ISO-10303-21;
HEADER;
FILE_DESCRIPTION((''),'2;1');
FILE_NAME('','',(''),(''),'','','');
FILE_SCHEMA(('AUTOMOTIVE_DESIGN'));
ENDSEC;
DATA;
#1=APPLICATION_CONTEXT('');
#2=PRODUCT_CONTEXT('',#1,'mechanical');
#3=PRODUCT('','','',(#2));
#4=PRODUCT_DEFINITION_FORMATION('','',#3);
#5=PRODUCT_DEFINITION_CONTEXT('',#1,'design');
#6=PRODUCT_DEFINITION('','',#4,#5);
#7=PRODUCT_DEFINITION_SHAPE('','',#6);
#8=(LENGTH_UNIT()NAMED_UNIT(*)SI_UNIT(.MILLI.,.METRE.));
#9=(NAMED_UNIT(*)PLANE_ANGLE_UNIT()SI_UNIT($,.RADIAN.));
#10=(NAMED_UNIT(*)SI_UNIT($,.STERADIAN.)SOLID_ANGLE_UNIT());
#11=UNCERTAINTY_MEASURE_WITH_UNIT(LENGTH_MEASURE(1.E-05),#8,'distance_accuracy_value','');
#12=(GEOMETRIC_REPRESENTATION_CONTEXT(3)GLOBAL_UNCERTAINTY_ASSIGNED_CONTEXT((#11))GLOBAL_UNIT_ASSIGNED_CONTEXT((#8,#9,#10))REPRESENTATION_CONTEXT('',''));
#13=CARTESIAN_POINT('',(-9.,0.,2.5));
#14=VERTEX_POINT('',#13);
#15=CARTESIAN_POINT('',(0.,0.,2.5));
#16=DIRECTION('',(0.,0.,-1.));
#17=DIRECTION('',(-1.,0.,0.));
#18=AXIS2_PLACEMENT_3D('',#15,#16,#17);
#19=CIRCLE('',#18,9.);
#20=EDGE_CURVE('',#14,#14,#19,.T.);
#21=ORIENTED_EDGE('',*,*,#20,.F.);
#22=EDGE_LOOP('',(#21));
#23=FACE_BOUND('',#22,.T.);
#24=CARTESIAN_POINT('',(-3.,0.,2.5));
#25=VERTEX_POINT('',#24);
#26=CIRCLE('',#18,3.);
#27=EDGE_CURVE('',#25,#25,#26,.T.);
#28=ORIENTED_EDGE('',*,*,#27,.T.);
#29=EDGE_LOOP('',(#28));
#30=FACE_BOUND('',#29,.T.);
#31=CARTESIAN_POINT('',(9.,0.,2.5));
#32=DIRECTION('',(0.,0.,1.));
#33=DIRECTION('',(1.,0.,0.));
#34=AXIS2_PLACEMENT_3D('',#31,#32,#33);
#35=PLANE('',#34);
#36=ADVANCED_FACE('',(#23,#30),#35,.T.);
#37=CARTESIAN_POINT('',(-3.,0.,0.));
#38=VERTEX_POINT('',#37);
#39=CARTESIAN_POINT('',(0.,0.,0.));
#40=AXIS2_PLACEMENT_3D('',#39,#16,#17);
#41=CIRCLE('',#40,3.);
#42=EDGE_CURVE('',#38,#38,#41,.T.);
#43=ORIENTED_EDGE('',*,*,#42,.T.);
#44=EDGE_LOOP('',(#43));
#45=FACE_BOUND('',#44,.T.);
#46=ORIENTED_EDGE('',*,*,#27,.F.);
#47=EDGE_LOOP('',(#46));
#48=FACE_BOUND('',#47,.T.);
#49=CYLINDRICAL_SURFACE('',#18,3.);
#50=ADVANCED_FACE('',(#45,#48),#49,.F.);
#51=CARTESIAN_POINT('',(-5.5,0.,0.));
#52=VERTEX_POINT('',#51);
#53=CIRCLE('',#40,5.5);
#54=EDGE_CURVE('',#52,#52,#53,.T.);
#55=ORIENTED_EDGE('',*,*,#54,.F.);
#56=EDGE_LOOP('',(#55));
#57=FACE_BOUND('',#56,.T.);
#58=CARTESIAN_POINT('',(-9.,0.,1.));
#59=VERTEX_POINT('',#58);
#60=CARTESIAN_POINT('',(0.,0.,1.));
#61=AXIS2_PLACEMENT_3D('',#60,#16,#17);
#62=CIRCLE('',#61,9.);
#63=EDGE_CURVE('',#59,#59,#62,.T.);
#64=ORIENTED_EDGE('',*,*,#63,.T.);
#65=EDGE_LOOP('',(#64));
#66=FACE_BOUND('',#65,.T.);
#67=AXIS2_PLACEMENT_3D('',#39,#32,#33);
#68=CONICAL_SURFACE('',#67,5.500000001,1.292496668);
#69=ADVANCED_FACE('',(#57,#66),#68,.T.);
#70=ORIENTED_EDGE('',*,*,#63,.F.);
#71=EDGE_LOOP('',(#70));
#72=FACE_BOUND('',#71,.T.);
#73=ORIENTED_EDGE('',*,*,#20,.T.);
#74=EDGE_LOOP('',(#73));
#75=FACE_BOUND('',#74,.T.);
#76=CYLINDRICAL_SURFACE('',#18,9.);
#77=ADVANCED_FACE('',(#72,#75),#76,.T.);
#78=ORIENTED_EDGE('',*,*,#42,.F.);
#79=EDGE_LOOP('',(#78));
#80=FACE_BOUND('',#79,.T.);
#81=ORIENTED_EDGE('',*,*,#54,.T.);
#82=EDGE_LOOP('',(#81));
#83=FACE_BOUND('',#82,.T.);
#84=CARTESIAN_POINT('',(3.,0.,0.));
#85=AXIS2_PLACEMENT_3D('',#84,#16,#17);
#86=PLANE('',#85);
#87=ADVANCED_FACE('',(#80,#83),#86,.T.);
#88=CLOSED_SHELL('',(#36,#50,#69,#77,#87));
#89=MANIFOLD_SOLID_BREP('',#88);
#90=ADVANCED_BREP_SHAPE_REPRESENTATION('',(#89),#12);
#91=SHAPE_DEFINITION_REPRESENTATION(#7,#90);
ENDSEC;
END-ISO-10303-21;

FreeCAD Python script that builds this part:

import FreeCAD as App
import Part
import Sketcher

V = App.Vector
Q = App.Units.Quantity

doc = App.newDocument("Part")
body = doc.addObject("PartDesign::Body", "Body")

sketch1 = body.newObject("Sketcher::SketchObject", "Sketch")
sketch1.AttachmentSupport = (doc.getObject("XZ_Plane"), [""])
sketch1.MapMode = "FlatFace"
sketch1.addGeometry([
    Part.LineSegment(V(5.5, 0, 0), V(9, 1, 0)),
    Part.LineSegment(V(9, 1, 0), V(9, 2.5, 0)),
    Part.LineSegment(V(9, 2.5, 0), V(3, 2.5, 0)),
    Part.LineSegment(V(3, 2.5, 0), V(3, 0, 0)),
    Part.LineSegment(V(3, 0, 0), V(5.5, 0, 0)),
], False)
sketch1.addConstraint([
    Sketcher.Constraint("Coincident", 0, 2, 1, 1),
    Sketcher.Constraint("Coincident", 1, 2, 2, 1),
    Sketcher.Constraint("Coincident", 2, 2, 3, 1),
    Sketcher.Constraint("Coincident", 3, 2, 4, 1),
    Sketcher.Constraint("Coincident", 4, 2, 0, 1),
    Sketcher.Constraint("Vertical", 1),
    Sketcher.Constraint("Horizontal", 2),
    Sketcher.Constraint("Vertical", 3),
    Sketcher.Constraint("Horizontal", 4),
    Sketcher.Constraint("PointOnObject", 3, 2, -1),
    Sketcher.Constraint("Equal", 4, 3),
    Sketcher.Constraint("DistanceX", 2, 2, 2, 1, Q("6 mm")),
    Sketcher.Constraint("DistanceX", 4, 1, 4, 2, Q("2.5 mm")),
    Sketcher.Constraint("DistanceY", 1, 1, 1, 2, Q("1.5 mm")),
    Sketcher.Constraint("DistanceX", -1, 1, 0, 2, Q("9 mm")),
])
revolution = body.newObject("PartDesign::Revolution", "Revolution")
revolution.Profile = sketch1
revolution.ReferenceAxis = (sketch1, ["V_Axis"])
revolution.Angle = 360

doc.recompute()
